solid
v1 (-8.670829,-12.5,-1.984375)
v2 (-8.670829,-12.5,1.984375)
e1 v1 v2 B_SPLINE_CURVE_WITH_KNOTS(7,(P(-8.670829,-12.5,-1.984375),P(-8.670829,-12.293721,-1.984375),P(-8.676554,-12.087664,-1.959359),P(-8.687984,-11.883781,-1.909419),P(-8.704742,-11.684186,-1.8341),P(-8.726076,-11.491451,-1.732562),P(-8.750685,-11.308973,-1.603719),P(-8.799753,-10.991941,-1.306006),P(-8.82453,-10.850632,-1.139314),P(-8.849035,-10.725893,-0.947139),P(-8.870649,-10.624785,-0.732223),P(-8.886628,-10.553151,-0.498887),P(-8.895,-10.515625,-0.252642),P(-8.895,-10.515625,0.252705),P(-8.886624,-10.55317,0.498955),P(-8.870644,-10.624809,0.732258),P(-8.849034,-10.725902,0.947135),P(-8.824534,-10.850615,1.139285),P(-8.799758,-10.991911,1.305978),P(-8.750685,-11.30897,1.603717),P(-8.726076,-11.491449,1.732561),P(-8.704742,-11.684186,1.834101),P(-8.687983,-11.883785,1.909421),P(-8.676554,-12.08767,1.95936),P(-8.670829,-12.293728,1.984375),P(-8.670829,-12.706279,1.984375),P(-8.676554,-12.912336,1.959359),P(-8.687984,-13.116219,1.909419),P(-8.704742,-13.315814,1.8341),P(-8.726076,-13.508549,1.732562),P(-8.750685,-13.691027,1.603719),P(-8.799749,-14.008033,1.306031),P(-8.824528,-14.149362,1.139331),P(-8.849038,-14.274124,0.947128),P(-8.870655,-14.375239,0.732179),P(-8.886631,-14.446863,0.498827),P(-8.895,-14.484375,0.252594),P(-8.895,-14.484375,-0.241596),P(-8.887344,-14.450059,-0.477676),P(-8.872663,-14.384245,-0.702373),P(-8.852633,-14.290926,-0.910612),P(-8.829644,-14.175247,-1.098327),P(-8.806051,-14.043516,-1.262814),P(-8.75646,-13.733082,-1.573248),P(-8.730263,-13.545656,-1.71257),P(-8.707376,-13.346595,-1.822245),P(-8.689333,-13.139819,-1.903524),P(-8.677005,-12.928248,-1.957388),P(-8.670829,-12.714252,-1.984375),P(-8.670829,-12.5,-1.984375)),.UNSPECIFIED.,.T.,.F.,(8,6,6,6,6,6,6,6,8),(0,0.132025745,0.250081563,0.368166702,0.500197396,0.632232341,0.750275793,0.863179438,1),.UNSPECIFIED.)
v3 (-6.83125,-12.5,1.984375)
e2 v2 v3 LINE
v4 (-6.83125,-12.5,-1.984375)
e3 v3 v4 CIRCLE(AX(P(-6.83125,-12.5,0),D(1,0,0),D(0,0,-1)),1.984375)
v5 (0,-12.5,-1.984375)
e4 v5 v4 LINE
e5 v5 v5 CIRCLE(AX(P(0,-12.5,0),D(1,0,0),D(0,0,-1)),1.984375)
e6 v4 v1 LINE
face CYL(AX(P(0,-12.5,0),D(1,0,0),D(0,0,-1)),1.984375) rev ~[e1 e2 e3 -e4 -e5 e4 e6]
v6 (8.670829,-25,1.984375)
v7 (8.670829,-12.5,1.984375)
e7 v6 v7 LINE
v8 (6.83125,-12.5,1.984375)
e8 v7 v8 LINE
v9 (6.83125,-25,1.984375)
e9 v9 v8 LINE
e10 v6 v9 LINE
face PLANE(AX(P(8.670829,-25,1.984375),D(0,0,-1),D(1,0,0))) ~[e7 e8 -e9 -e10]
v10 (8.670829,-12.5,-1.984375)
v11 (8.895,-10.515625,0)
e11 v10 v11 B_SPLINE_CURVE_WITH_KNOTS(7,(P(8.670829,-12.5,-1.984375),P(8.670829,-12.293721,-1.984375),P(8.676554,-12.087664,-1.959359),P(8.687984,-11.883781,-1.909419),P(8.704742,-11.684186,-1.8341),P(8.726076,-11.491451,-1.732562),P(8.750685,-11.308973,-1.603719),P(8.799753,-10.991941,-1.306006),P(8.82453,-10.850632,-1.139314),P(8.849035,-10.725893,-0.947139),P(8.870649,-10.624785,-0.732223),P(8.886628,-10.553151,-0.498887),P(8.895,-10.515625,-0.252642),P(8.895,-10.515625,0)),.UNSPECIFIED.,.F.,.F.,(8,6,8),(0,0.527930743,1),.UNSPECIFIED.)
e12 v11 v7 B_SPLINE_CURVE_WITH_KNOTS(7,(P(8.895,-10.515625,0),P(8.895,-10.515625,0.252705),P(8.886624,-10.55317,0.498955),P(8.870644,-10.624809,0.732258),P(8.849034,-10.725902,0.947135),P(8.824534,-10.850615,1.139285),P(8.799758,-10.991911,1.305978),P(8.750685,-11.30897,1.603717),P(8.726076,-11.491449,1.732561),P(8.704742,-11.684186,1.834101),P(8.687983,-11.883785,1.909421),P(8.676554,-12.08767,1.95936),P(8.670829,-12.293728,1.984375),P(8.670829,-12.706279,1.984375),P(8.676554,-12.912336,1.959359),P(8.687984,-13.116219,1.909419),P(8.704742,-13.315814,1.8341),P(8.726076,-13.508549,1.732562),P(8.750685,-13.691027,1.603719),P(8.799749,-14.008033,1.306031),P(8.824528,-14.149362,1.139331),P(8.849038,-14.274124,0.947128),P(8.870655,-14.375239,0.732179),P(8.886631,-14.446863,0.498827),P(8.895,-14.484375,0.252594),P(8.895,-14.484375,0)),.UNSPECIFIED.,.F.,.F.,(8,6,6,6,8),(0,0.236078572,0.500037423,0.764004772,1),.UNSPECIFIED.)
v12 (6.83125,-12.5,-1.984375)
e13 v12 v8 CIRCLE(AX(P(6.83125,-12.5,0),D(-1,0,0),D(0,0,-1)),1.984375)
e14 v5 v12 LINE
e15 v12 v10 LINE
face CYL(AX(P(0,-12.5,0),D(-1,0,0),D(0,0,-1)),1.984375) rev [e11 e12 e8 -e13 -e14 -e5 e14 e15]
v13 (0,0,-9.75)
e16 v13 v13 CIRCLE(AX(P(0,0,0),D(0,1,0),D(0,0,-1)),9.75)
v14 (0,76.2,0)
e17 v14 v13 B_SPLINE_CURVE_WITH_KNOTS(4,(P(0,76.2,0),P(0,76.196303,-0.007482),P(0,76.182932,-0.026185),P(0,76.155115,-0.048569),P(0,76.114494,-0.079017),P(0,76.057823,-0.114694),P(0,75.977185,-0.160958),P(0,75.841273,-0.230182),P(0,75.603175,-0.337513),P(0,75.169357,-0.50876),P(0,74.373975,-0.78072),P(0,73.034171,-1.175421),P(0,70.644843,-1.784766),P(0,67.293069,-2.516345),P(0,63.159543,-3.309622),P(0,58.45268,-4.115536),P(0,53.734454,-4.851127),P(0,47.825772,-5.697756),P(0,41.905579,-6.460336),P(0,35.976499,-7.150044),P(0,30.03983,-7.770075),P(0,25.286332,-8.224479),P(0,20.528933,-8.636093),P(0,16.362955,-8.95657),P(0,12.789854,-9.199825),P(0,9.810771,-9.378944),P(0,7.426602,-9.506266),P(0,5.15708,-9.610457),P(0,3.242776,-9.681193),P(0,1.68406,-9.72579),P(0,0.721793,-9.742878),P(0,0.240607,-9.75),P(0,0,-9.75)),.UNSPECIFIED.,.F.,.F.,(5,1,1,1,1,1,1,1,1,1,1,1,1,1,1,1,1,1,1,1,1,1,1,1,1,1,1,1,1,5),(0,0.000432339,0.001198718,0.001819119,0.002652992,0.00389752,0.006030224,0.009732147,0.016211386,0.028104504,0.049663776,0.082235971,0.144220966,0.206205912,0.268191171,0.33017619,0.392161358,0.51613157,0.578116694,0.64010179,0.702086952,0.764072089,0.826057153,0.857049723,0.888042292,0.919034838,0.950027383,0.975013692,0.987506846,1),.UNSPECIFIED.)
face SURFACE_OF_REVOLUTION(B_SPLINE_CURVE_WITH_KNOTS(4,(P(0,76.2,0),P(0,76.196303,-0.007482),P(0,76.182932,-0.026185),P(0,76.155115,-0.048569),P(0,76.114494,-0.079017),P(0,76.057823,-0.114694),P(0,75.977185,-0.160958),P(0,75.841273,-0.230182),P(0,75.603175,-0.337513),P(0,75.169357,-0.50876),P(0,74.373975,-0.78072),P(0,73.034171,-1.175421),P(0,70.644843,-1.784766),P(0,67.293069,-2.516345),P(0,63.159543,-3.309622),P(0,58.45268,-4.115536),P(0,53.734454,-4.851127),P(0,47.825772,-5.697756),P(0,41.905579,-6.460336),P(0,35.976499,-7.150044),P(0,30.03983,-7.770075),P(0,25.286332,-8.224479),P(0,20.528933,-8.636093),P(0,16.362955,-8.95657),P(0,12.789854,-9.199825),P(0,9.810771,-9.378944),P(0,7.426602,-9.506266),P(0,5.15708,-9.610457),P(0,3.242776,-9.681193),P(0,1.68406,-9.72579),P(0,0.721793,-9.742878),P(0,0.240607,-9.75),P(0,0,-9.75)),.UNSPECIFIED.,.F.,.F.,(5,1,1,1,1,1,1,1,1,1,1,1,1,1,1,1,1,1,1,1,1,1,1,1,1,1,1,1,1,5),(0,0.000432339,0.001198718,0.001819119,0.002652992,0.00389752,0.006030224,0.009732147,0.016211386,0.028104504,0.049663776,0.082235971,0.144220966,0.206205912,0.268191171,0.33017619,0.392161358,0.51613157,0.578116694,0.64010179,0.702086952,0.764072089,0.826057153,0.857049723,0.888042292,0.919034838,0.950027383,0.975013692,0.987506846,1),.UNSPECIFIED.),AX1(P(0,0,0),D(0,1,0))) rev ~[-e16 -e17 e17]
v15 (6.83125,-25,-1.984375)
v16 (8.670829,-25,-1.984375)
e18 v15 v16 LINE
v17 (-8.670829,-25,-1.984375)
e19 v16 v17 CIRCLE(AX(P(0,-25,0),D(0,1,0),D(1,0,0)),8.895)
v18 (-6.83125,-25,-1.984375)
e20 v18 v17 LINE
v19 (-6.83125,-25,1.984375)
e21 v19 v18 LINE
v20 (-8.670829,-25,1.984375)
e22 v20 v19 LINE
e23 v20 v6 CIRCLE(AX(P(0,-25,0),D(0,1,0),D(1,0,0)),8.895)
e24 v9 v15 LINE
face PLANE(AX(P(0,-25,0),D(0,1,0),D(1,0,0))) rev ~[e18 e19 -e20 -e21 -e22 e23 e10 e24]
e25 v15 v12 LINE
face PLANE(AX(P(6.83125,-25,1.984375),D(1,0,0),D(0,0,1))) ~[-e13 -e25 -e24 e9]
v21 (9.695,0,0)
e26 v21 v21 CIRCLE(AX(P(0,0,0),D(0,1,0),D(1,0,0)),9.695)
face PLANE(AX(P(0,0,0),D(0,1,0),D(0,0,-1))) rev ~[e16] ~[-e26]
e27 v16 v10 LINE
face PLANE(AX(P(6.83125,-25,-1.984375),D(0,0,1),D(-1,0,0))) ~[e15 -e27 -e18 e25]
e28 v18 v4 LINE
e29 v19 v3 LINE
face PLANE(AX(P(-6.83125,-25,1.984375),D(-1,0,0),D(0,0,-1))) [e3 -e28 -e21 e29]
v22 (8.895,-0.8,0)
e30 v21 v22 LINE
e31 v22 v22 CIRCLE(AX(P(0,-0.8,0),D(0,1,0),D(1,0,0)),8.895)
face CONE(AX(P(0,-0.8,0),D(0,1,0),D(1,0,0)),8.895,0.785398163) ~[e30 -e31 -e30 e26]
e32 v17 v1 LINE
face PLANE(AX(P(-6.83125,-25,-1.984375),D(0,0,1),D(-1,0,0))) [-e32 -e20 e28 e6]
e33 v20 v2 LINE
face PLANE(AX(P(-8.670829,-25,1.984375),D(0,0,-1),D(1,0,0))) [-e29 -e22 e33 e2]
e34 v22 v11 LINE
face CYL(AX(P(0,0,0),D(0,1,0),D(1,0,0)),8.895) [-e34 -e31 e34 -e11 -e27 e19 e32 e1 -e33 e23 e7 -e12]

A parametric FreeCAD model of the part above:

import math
import FreeCAD as App
import Part
import Sketcher
from FreeCAD import Vector


def edges_at(feature, points):
    """Names of the edges that pass closest to the given points."""
    edges = feature.Shape.Edges
    near = lambda p: min(range(len(edges)), key=lambda i: edges[i].distToShape(Part.Vertex(*p))[0])
    return sorted({f"Edge{near(p) + 1}" for p in points})

doc = App.newDocument("Part")
params = doc.addObject("Spreadsheet::Sheet", "Params")
for row, (alias, value) in enumerate([
    ("sketch1_diameter", "17.79 mm"),
    ("pad1_length", "25 mm"),
    ("pocket1_length", "12.5 mm"),
    ("revolution_angle", "360 deg"),
    ("chamfer_size", "0.8 mm"),
], start=1):
    params.set(f"A{row}", alias)
    params.set(f"B{row}", "=" + value)
    params.setAlias(f"B{row}", alias)

body = doc.addObject("PartDesign::Body", "Body")

# Sketch on XZ plane
sketch1 = body.newObject("Sketcher::SketchObject", "Sketch")
sketch1.AttachmentSupport = (doc.getObject("XZ_Plane"), [""])
sketch1.MapMode = "FlatFace"
sketch1.addGeometry(Part.Circle(Vector(0, 0, 0), Vector(0, 0, 1), 9), False)
sketch1.addConstraint([
    Sketcher.Constraint("Coincident", 0, 3, -1, 1),
    Sketcher.Constraint("Diameter", 0, 17.79),
])
sketch1.setExpression("Constraints[1]", "Params.sketch1_diameter")
pad1 = body.newObject("PartDesign::Pad", "Pad")
pad1.Profile = sketch1
pad1.setExpression("Length", "Params.pad1_length")

# Sketch on XZ plane
sketch2 = body.newObject("Sketcher::SketchObject", "Sketch001")
sketch2.AttachmentSupport = (doc.getObject("XZ_Plane"), [""])
sketch2.MapMode = "FlatFace"
sketch2.AttachmentOffset = App.Placement(Vector(0, 0, 25), App.Rotation())
sketch2.addGeometry([
    Part.LineSegment(Vector(-6.8, -2, 0), Vector(-6.8, 2, 0)),
    Part.LineSegment(Vector(-6.8, 2, 0), Vector(-8.7, 2, 0)),
    Part.ArcOfCircle(Part.Circle(Vector(0, 0, 0), Vector(0, 0, 1), 8.9), math.radians(167), math.radians(193)),
    Part.LineSegment(Vector(-8.7, -2, 0), Vector(-6.8, -2, 0)),
], False)
sketch2.addConstraint([
    Sketcher.Constraint("Coincident", 0, 2, 1, 1),
    Sketcher.Constraint("Coincident", 1, 2, 2, 1),
    Sketcher.Constraint("Coincident", 2, 2, 3, 1),
    Sketcher.Constraint("Coincident", 3, 2, 0, 1),
    Sketcher.Constraint("Vertical", 0),
    Sketcher.Constraint("Horizontal", 1),
    Sketcher.Constraint("Horizontal", 3),
    Sketcher.Constraint("Coincident", 2, 3, -1, 1),
    Sketcher.Constraint("Vertical", 1, 2, 2, 2),
    Sketcher.Constraint("Radius", 2, 8.895),
    Sketcher.Constraint("DistanceX", 1, 2, 1, 1, 1.839579),
    Sketcher.Constraint("DistanceY", 0, 1, 0, 2, 3.96875),
])
pocket1 = body.newObject("PartDesign::Pocket", "Pocket")
pocket1.Profile = sketch2
pocket1.setExpression("Length", "Params.pocket1_length")
doc.recompute()

mirrored = body.newObject("PartDesign::Mirrored", "Mirrored")
mirrored.Originals = [pocket1]
mirrored.MirrorPlane = (doc.getObject("YZ_Plane"), [""])
body.Tip = mirrored

# Sketch on YZ plane
sketch3 = body.newObject("Sketcher::SketchObject", "Sketch002")
sketch3.AttachmentSupport = (doc.getObject("YZ_Plane"), [""])
sketch3.MapMode = "FlatFace"
sketch3.addGeometry(Part.Circle(Vector(-12.5, 0, 0), Vector(0, 0, 1), 2), False)
sketch3.addConstraint([
    Sketcher.Constraint("PointOnObject", 0, 3, -1),
    Sketcher.Constraint("DistanceX", 0, 3, -1, 1, 12.5),
    Sketcher.Constraint("Diameter", 0, 3.96875),
])
pocket2 = body.newObject("PartDesign::Pocket", "Pocket001")
pocket2.Profile = sketch3
pocket2.Type = "ThroughAll"
pocket2.Midplane = True

# Sketch on YZ plane
sketch4 = body.newObject("Sketcher::SketchObject", "Sketch003")
sketch4.AttachmentSupport = (doc.getObject("YZ_Plane"), [""])
sketch4.MapMode = "FlatFace"
sketch4.addGeometry([
    Part.LineSegment(Vector(0, 0, 0), Vector(0, -9.75, 0)),
    Part.BSplineCurve([Vector(76.2, 0, 0), Vector(76.196303, -0.007482, 0), Vector(76.182932, -0.026185, 0), Vector(76.155115, -0.048569, 0), Vector(76.114494, -0.079017, 0), Vector(76.057823, -0.114694, 0), Vector(75.977185, -0.160958, 0), Vector(75.841273, -0.230182, 0), Vector(75.603175, -0.337513, 0), Vector(75.169357, -0.50876, 0), Vector(74.373975, -0.78072, 0), Vector(73.034171, -1.175421, 0), Vector(70.644843, -1.784766, 0), Vector(67.293069, -2.516345, 0), Vector(63.159543, -3.309622, 0), Vector(58.45268, -4.115536, 0), Vector(53.734454, -4.851127, 0), Vector(47.825772, -5.697756, 0), Vector(41.905579, -6.460336, 0), Vector(35.976499, -7.150044, 0), Vector(30.03983, -7.770075, 0), Vector(25.286332, -8.224479, 0), Vector(20.528933, -8.636093, 0), Vector(16.362955, -8.95657, 0), Vector(12.789854, -9.199825, 0), Vector(9.810771, -9.378944, 0), Vector(7.426602, -9.506266, 0), Vector(5.15708, -9.610457, 0), Vector(3.242776, -9.681193, 0), Vector(1.68406, -9.72579, 0), Vector(0.721793, -9.742878, 0), Vector(0.240607, -9.75, 0), Vector(0, -9.75, 0)], [5, 1, 1, 1, 1, 1, 1, 1, 1, 1, 1, 1, 1, 1, 1, 1, 1, 1, 1, 1, 1, 1, 1, 1, 1, 1, 1, 1, 1, 5], [0, 0.000432339, 0.001198718, 0.001819119, 0.002652992, 0.00389752, 0.006030224, 0.009732147, 0.016211386, 0.028104504, 0.049663776, 0.082235971, 0.144220966, 0.206205912, 0.268191171, 0.33017619, 0.392161358, 0.51613157, 0.578116694, 0.64010179, 0.702086952, 0.764072089, 0.826057153, 0.857049723, 0.888042292, 0.919034838, 0.950027383, 0.975013692, 0.987506846, 1], False, 4, [1, 1, 1, 1, 1, 1, 1, 1, 1, 1, 1, 1, 1, 1, 1, 1, 1, 1, 1, 1, 1, 1, 1, 1, 1, 1, 1, 1, 1, 1, 1, 1, 1], False),
    Part.LineSegment(Vector(76.2, 0, 0), Vector(0, 0, 0)),
], False)
sketch4.addConstraint([
    Sketcher.Constraint("Block", 1),
    Sketcher.Constraint("Coincident", 0, 2, 1, 2),
    Sketcher.Constraint("Coincident", 1, 1, 2, 1),
    Sketcher.Constraint("Coincident", 2, 2, 0, 1),
    Sketcher.Constraint("Vertical", 0),
    Sketcher.Constraint("Horizontal", 2),
])
revolution = body.newObject("PartDesign::Revolution", "Revolution")
revolution.Profile = sketch4
revolution.ReferenceAxis = (sketch4, ["H_Axis"])
revolution.setExpression("Angle", "Params.revolution_angle")
doc.recompute()

chamfer = body.newObject("PartDesign::Chamfer", "Chamfer")
chamfer.Base = (revolution, edges_at(revolution, [(-8.895, 0, 0)]))
chamfer.setExpression("Size", "Params.chamfer_size")

doc.recompute()
